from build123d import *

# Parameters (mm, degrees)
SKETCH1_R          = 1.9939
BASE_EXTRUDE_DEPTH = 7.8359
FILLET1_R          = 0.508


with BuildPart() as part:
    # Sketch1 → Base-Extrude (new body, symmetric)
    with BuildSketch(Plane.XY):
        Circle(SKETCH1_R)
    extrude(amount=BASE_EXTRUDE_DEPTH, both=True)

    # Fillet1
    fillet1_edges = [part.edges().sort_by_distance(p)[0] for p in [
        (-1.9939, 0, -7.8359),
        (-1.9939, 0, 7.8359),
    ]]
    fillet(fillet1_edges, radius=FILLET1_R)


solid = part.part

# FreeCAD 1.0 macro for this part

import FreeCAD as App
import Part
import Sketcher

V = App.Vector
Q = App.Units.Quantity


def edges_at(feature, points):
    """Names of the edges that pass closest to the given points."""
    edges = feature.Shape.Edges
    near = lambda p: min(range(len(edges)), key=lambda i: edges[i].distToShape(Part.Vertex(*p))[0])
    return sorted({f"Edge{near(p) + 1}" for p in points})

doc = App.newDocument("Part")
params = doc.addObject("Spreadsheet::Sheet", "Params")
for row, (alias, value) in enumerate([
    ("sketch1_diameter", "0.157 in"),
    ("pad1_length", "0.617 in"),
    ("fillet_radius", "0.02 in"),
], start=1):
    params.set(f"A{row}", alias)
    params.set(f"B{row}", "=" + value)
    params.setAlias(f"B{row}", alias)

body = doc.addObject("PartDesign::Body", "Body")

# Sketch on XY plane
sketch1 = doc.addObject("Sketcher::SketchObject", "Sketch")
body.addObject(sketch1)
sketch1.AttachmentSupport = (doc.XY_Plane, [""])
sketch1.MapMode = "FlatFace"
sketch1.addGeometry(Part.Circle(V(0, 0, 0), V(0, 0, 1), 1.9939), False)
sketch1.addConstraint([
    Sketcher.Constraint("Coincident", 0, 3, -1, 1),
    Sketcher.Constraint("Diameter", 0, Q("0.157 in")),
])
sketch1.setExpression("Constraints[1]", "Params.sketch1_diameter")
pad1 = doc.addObject("PartDesign::Pad", "Pad")
body.addObject(pad1)
pad1.Profile = sketch1
pad1.setExpression("Length", "Params.pad1_length")
pad1.Midplane = True
doc.recompute()

fillet = doc.addObject("PartDesign::Fillet", "Fillet")
body.addObject(fillet)
fillet.Base = (pad1, edges_at(pad1, [(-1.994, 0, -7.836), (-1.994, 0, 7.836)]))
fillet.setExpression("Radius", "Params.fillet_radius")

doc.recompute()
